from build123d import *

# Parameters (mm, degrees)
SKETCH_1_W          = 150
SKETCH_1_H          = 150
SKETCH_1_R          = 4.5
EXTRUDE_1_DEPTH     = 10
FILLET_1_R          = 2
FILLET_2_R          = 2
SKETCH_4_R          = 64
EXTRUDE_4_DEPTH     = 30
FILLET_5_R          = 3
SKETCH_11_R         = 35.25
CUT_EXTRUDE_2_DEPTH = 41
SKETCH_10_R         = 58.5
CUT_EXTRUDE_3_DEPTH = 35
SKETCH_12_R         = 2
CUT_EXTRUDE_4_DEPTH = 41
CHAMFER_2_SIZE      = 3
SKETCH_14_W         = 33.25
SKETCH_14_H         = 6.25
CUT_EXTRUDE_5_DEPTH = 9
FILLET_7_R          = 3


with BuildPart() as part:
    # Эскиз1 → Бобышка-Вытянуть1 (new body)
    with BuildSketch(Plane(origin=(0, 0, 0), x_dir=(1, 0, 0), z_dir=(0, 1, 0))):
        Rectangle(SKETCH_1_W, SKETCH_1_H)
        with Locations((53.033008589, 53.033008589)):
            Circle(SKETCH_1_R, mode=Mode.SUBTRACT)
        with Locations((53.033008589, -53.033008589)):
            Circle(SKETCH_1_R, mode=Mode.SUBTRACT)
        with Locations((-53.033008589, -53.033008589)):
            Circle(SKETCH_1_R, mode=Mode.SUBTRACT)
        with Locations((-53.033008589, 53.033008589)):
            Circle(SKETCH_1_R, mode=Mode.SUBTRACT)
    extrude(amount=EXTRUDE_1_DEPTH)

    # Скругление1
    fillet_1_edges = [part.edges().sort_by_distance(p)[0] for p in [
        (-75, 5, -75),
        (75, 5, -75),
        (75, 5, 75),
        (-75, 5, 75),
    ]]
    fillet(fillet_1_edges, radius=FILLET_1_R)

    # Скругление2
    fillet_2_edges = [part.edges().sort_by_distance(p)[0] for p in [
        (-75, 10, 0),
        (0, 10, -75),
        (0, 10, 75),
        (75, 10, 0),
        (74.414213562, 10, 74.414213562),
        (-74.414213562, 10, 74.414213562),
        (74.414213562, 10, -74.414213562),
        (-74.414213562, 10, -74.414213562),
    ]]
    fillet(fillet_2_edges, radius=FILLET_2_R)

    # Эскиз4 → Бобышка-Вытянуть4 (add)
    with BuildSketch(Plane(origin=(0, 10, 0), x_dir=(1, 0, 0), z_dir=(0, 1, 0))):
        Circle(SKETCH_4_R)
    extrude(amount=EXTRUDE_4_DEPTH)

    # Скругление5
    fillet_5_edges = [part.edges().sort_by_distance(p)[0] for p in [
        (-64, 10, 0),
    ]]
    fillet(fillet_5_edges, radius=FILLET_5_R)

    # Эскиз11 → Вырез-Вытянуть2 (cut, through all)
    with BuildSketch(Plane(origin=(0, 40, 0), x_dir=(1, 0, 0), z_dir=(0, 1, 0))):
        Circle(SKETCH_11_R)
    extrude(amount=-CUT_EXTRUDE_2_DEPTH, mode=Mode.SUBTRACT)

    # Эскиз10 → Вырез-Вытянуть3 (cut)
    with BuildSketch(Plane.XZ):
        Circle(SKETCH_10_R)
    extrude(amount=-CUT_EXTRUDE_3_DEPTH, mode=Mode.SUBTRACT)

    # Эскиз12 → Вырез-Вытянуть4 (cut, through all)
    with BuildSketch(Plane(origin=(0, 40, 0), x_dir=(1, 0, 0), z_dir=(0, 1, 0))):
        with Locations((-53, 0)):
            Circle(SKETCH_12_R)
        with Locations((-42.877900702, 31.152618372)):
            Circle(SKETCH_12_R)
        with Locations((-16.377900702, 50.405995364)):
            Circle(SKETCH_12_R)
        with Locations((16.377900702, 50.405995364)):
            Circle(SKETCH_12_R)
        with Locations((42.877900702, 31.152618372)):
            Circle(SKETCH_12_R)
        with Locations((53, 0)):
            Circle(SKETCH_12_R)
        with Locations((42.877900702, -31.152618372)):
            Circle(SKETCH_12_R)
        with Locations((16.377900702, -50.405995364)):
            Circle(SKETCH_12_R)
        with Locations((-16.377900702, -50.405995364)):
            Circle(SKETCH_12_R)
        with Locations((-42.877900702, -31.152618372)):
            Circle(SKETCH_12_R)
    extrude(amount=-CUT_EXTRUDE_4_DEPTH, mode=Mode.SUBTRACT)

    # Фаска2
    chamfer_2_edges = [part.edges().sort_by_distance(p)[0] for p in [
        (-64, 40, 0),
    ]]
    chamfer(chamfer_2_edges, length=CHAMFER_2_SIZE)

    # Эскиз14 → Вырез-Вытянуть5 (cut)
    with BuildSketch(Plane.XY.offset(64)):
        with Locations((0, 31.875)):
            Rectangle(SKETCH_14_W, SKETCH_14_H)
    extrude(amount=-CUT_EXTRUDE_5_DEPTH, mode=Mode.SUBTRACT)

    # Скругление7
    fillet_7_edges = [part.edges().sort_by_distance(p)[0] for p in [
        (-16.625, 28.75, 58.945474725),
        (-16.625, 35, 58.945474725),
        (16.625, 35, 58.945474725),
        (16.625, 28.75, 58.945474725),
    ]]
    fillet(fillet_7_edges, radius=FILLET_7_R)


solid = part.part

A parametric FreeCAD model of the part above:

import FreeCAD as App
import Part
import Sketcher

V = App.Vector
Q = App.Units.Quantity


def edges_at(feature, points):
    """Names of the edges that pass closest to the given points."""
    edges = feature.Shape.Edges
    near = lambda p: min(range(len(edges)), key=lambda i: edges[i].distToShape(Part.Vertex(*p))[0])
    return sorted({f"Edge{near(p) + 1}" for p in points})

doc = App.newDocument("Part")
body = doc.addObject("PartDesign::Body", "Body")

sketch1 = body.newObject("Sketcher::SketchObject", "Sketch")
sketch1.AttachmentSupport = (doc.getObject("XZ_Plane"), [""])
sketch1.MapMode = "FlatFace"
sketch1.addGeometry(Part.LineSegment(V(-75, -75, 0), V(-75, 75, 0)), False)
sketch1.addGeometry(Part.LineSegment(V(-75, 75, 0), V(75, 75, 0)), False)
sketch1.addGeometry(Part.LineSegment(V(75, 75, 0), V(75, -75, 0)), False)
sketch1.addGeometry(Part.LineSegment(V(75, -75, 0), V(-75, -75, 0)), False)
sketch1.addGeometry(Part.Circle(V(-53, 53, 0), V(0, 0, 1), 4.5), False)
sketch1.addGeometry(Part.Circle(V(53, 53, 0), V(0, 0, 1), 4.5), False)
sketch1.addGeometry(Part.Circle(V(-53, -53, 0), V(0, 0, 1), 4.5), False)
sketch1.addGeometry(Part.Circle(V(53, -53, 0), V(0, 0, 1), 4.5), False)
sketch1.addConstraint(Sketcher.Constraint("Coincident", 0, 2, 1, 1))
sketch1.addConstraint(Sketcher.Constraint("Coincident", 1, 2, 2, 1))
sketch1.addConstraint(Sketcher.Constraint("Coincident", 2, 2, 3, 1))
sketch1.addConstraint(Sketcher.Constraint("Coincident", 3, 2, 0, 1))
sketch1.addConstraint(Sketcher.Constraint("Vertical", 0))
sketch1.addConstraint(Sketcher.Constraint("Horizontal", 1))
sketch1.addConstraint(Sketcher.Constraint("Vertical", 2))
sketch1.addConstraint(Sketcher.Constraint("Horizontal", 3))
sketch1.addConstraint(Sketcher.Constraint("Equal", 4, 5))
sketch1.addConstraint(Sketcher.Constraint("Equal", 5, 6))
sketch1.addConstraint(Sketcher.Constraint("Equal", 6, 7))
sketch1.addConstraint(Sketcher.Constraint("Symmetric", 5, 3, 6, 3, -1, 1))
sketch1.addConstraint(Sketcher.Constraint("Symmetric", 4, 3, 7, 3, -1, 1))
sketch1.addConstraint(Sketcher.Constraint("Symmetric", 0, 2, 2, 2, -1, 1))
sketch1.addConstraint(Sketcher.Constraint("Symmetric", 4, 3, 5, 3, -2))
sketch1.addConstraint(Sketcher.Constraint("Equal", 3, 0))
sketch1.addConstraint(Sketcher.Constraint("Diameter", 4, Q("9 mm")))
sketch1.addConstraint(Sketcher.Constraint("DistanceX", 1, 1, 1, 2, Q("150 mm")))
sketch1.addConstraint(Sketcher.Constraint("DistanceX", 4, 3, -1, 1, Q("53.033009 mm")))
sketch1.addConstraint(Sketcher.Constraint("DistanceY", -1, 1, 4, 3, Q("53.033009 mm")))
pad1 = body.newObject("PartDesign::Pad", "Pad")
pad1.Profile = sketch1
pad1.Length = 10
pad1.Reversed = True
doc.recompute()

fillet = body.newObject("PartDesign::Fillet", "Fillet")
fillet.Base = (pad1, edges_at(pad1, [
    (-75, 5, -75),
    (75, 5, -75),
    (75, 5, 75),
    (-75, 5, 75),
]))
fillet.Radius = 2
doc.recompute()

fillet2 = body.newObject("PartDesign::Fillet", "Fillet001")
fillet2.Base = (fillet, edges_at(fillet, [
    (-75, 10, 0),
    (0, 10, -75),
    (0, 10, 75),
    (75, 10, 0),
    (74.414, 10, 74.414),
    (-74.414, 10, 74.414),
    (74.414, 10, -74.414),
    (-74.414, 10, -74.414),
]))
fillet2.Radius = 2

sketch2 = body.newObject("Sketcher::SketchObject", "Sketch001")
sketch2.AttachmentSupport = (doc.getObject("XZ_Plane"), [""])
sketch2.MapMode = "FlatFace"
sketch2.AttachmentOffset = App.Placement(V(0, 0, -10), App.Rotation())
sketch2.addGeometry(Part.Circle(V(0, 0, 0), V(0, 0, 1), 64), False)
sketch2.addConstraint(Sketcher.Constraint("Coincident", 0, 3, -1, 1))
sketch2.addConstraint(Sketcher.Constraint("Diameter", 0, Q("128 mm")))
pad2 = body.newObject("PartDesign::Pad", "Pad001")
pad2.Profile = sketch2
pad2.Length = 30
pad2.Reversed = True
doc.recompute()

fillet3 = body.newObject("PartDesign::Fillet", "Fillet002")
fillet3.Base = (pad2, edges_at(pad2, [(-64, 10, 0)]))
fillet3.Radius = 3

sketch3 = body.newObject("Sketcher::SketchObject", "Sketch002")
sketch3.AttachmentSupport = (doc.getObject("XZ_Plane"), [""])
sketch3.MapMode = "FlatFace"
sketch3.AttachmentOffset = App.Placement(V(0, 0, -40), App.Rotation())
sketch3.addGeometry(Part.Circle(V(0, 0, 0), V(0, 0, 1), 35), False)
sketch3.addConstraint(Sketcher.Constraint("Coincident", 0, 3, -1, 1))
sketch3.addConstraint(Sketcher.Constraint("Diameter", 0, Q("70.5 mm")))
pocket1 = body.newObject("PartDesign::Pocket", "Pocket")
pocket1.Profile = sketch3
pocket1.Type = "ThroughAll"
pocket1.Reversed = True

sketch4 = body.newObject("Sketcher::SketchObject", "Sketch003")
sketch4.AttachmentSupport = (doc.getObject("XZ_Plane"), [""])
sketch4.MapMode = "FlatFace"
sketch4.addGeometry(Part.Circle(V(0, 0, 0), V(0, 0, 1), 58), False)
sketch4.addConstraint(Sketcher.Constraint("Coincident", 0, 3, -1, 1))
sketch4.addConstraint(Sketcher.Constraint("Diameter", 0, Q("117 mm")))
pocket2 = body.newObject("PartDesign::Pocket", "Pocket001")
pocket2.Profile = sketch4
pocket2.Length = 35

sketch5 = body.newObject("Sketcher::SketchObject", "Sketch004")
sketch5.AttachmentSupport = (doc.getObject("XZ_Plane"), [""])
sketch5.MapMode = "FlatFace"
sketch5.AttachmentOffset = App.Placement(V(0, 0, -40), App.Rotation())
sketch5.addGeometry(Part.Circle(V(-53, 0, 0), V(0, 0, 1), 2), False)
sketch5.addGeometry(Part.Circle(V(-42.9, -31.2, 0), V(0, 0, 1), 2), False)
sketch5.addGeometry(Part.Circle(V(-16.4, -50.4, 0), V(0, 0, 1), 2), False)
sketch5.addGeometry(Part.Circle(V(16.4, -50.4, 0), V(0, 0, 1), 2), False)
sketch5.addGeometry(Part.Circle(V(42.9, -31.2, 0), V(0, 0, 1), 2), False)
sketch5.addGeometry(Part.Circle(V(53, 0, 0), V(0, 0, 1), 2), False)
sketch5.addGeometry(Part.Circle(V(42.9, 31.2, 0), V(0, 0, 1), 2), False)
sketch5.addGeometry(Part.Circle(V(16.4, 50.4, 0), V(0, 0, 1), 2), False)
sketch5.addGeometry(Part.Circle(V(-16.4, 50.4, 0), V(0, 0, 1), 2), False)
sketch5.addGeometry(Part.Circle(V(-42.9, 31.2, 0), V(0, 0, 1), 2), False)
sketch5.addConstraint(Sketcher.Constraint("Equal", 0, 1))
sketch5.addConstraint(Sketcher.Constraint("Equal", 1, 2))
sketch5.addConstraint(Sketcher.Constraint("Equal", 2, 3))
sketch5.addConstraint(Sketcher.Constraint("Equal", 3, 4))
sketch5.addConstraint(Sketcher.Constraint("Equal", 4, 5))
sketch5.addConstraint(Sketcher.Constraint("Equal", 5, 6))
sketch5.addConstraint(Sketcher.Constraint("Equal", 6, 7))
sketch5.addConstraint(Sketcher.Constraint("Equal", 7, 8))
sketch5.addConstraint(Sketcher.Constraint("Equal", 8, 9))
sketch5.addConstraint(Sketcher.Constraint("Symmetric", 0, 3, 5, 3, -1, 1))
sketch5.addConstraint(Sketcher.Constraint("Symmetric", 1, 3, 6, 3, -1, 1))
sketch5.addConstraint(Sketcher.Constraint("Symmetric", 2, 3, 7, 3, -1, 1))
sketch5.addConstraint(Sketcher.Constraint("Symmetric", 3, 3, 8, 3, -1, 1))
sketch5.addConstraint(Sketcher.Constraint("Symmetric", 4, 3, 9, 3, -1, 1))
sketch5.addConstraint(Sketcher.Constraint("Symmetric", 2, 3, 3, 3, -2))
sketch5.addConstraint(Sketcher.Constraint("Symmetric", 1, 3, 4, 3, -2))
sketch5.addConstraint(Sketcher.Constraint("PointOnObject", 0, 3, -1))
sketch5.addConstraint(Sketcher.Constraint("Diameter", 0, Q("4 mm")))
sketch5.addConstraint(Sketcher.Constraint("DistanceX", 0, 3, -1, 1, Q("53 mm")))
sketch5.addConstraint(Sketcher.Constraint("DistanceX", 1, 3, 2, 3, Q("26.5 mm")))
sketch5.addConstraint(Sketcher.Constraint("DistanceX", 1, 3, -1, 1, Q("42.877901 mm")))
sketch5.addConstraint(Sketcher.Constraint("DistanceY", 1, 3, -1, 1, Q("31.152618 mm")))
sketch5.addConstraint(Sketcher.Constraint("DistanceY", 3, 3, 7, 3, Q("100.811991 mm")))
pocket3 = body.newObject("PartDesign::Pocket", "Pocket002")
pocket3.Profile = sketch5
pocket3.Type = "ThroughAll"
pocket3.Reversed = True
doc.recompute()

chamfer = body.newObject("PartDesign::Chamfer", "Chamfer")
chamfer.Base = (pocket3, edges_at(pocket3, [(-64, 40, 0)]))
chamfer.Size = 3

sketch6 = body.newObject("Sketcher::SketchObject", "Sketch005")
sketch6.AttachmentSupport = (doc.getObject("XY_Plane"), [""])
sketch6.MapMode = "FlatFace"
sketch6.AttachmentOffset = App.Placement(V(0, 0, 64), App.Rotation())
sketch6.addGeometry(Part.LineSegment(V(-17, 35, 0), V(-17, 29, 0)), False)
sketch6.addGeometry(Part.LineSegment(V(-17, 29, 0), V(17, 29, 0)), False)
sketch6.addGeometry(Part.LineSegment(V(17, 29, 0), V(17, 35, 0)), False)
sketch6.addGeometry(Part.LineSegment(V(17, 35, 0), V(-17, 35, 0)), False)
sketch6.addConstraint(Sketcher.Constraint("Coincident", 0, 2, 1, 1))
sketch6.addConstraint(Sketcher.Constraint("Coincident", 1, 2, 2, 1))
sketch6.addConstraint(Sketcher.Constraint("Coincident", 2, 2, 3, 1))
sketch6.addConstraint(Sketcher.Constraint("Coincident", 3, 2, 0, 1))
sketch6.addConstraint(Sketcher.Constraint("Vertical", 0))
sketch6.addConstraint(Sketcher.Constraint("Horizontal", 1))
sketch6.addConstraint(Sketcher.Constraint("Vertical", 2))
sketch6.addConstraint(Sketcher.Constraint("Horizontal", 3))
sketch6.addConstraint(Sketcher.Constraint("DistanceY", -1, 1, 2, 2, Q("35 mm")))
sketch6.addConstraint(Sketcher.Constraint("DistanceX", 1, 1, 1, 2, Q("33.25 mm")))
sketch6.addConstraint(Sketcher.Constraint("DistanceY", 0, 2, 0, 1, Q("6.25 mm")))
sketch6.addConstraint(Sketcher.Constraint("DistanceX", 0, 2, -1, 1, Q("16.625 mm")))
pocket4 = body.newObject("PartDesign::Pocket", "Pocket003")
pocket4.Profile = sketch6
pocket4.Length = 9
doc.recompute()

fillet4 = body.newObject("PartDesign::Fillet", "Fillet003")
fillet4.Base = (pocket4, edges_at(pocket4, [
    (-16.625, 28.75, 58.945),
    (-16.625, 35, 58.945),
    (16.625, 35, 58.945),
    (16.625, 28.75, 58.945),
]))
fillet4.Radius = 3

doc.recompute()
